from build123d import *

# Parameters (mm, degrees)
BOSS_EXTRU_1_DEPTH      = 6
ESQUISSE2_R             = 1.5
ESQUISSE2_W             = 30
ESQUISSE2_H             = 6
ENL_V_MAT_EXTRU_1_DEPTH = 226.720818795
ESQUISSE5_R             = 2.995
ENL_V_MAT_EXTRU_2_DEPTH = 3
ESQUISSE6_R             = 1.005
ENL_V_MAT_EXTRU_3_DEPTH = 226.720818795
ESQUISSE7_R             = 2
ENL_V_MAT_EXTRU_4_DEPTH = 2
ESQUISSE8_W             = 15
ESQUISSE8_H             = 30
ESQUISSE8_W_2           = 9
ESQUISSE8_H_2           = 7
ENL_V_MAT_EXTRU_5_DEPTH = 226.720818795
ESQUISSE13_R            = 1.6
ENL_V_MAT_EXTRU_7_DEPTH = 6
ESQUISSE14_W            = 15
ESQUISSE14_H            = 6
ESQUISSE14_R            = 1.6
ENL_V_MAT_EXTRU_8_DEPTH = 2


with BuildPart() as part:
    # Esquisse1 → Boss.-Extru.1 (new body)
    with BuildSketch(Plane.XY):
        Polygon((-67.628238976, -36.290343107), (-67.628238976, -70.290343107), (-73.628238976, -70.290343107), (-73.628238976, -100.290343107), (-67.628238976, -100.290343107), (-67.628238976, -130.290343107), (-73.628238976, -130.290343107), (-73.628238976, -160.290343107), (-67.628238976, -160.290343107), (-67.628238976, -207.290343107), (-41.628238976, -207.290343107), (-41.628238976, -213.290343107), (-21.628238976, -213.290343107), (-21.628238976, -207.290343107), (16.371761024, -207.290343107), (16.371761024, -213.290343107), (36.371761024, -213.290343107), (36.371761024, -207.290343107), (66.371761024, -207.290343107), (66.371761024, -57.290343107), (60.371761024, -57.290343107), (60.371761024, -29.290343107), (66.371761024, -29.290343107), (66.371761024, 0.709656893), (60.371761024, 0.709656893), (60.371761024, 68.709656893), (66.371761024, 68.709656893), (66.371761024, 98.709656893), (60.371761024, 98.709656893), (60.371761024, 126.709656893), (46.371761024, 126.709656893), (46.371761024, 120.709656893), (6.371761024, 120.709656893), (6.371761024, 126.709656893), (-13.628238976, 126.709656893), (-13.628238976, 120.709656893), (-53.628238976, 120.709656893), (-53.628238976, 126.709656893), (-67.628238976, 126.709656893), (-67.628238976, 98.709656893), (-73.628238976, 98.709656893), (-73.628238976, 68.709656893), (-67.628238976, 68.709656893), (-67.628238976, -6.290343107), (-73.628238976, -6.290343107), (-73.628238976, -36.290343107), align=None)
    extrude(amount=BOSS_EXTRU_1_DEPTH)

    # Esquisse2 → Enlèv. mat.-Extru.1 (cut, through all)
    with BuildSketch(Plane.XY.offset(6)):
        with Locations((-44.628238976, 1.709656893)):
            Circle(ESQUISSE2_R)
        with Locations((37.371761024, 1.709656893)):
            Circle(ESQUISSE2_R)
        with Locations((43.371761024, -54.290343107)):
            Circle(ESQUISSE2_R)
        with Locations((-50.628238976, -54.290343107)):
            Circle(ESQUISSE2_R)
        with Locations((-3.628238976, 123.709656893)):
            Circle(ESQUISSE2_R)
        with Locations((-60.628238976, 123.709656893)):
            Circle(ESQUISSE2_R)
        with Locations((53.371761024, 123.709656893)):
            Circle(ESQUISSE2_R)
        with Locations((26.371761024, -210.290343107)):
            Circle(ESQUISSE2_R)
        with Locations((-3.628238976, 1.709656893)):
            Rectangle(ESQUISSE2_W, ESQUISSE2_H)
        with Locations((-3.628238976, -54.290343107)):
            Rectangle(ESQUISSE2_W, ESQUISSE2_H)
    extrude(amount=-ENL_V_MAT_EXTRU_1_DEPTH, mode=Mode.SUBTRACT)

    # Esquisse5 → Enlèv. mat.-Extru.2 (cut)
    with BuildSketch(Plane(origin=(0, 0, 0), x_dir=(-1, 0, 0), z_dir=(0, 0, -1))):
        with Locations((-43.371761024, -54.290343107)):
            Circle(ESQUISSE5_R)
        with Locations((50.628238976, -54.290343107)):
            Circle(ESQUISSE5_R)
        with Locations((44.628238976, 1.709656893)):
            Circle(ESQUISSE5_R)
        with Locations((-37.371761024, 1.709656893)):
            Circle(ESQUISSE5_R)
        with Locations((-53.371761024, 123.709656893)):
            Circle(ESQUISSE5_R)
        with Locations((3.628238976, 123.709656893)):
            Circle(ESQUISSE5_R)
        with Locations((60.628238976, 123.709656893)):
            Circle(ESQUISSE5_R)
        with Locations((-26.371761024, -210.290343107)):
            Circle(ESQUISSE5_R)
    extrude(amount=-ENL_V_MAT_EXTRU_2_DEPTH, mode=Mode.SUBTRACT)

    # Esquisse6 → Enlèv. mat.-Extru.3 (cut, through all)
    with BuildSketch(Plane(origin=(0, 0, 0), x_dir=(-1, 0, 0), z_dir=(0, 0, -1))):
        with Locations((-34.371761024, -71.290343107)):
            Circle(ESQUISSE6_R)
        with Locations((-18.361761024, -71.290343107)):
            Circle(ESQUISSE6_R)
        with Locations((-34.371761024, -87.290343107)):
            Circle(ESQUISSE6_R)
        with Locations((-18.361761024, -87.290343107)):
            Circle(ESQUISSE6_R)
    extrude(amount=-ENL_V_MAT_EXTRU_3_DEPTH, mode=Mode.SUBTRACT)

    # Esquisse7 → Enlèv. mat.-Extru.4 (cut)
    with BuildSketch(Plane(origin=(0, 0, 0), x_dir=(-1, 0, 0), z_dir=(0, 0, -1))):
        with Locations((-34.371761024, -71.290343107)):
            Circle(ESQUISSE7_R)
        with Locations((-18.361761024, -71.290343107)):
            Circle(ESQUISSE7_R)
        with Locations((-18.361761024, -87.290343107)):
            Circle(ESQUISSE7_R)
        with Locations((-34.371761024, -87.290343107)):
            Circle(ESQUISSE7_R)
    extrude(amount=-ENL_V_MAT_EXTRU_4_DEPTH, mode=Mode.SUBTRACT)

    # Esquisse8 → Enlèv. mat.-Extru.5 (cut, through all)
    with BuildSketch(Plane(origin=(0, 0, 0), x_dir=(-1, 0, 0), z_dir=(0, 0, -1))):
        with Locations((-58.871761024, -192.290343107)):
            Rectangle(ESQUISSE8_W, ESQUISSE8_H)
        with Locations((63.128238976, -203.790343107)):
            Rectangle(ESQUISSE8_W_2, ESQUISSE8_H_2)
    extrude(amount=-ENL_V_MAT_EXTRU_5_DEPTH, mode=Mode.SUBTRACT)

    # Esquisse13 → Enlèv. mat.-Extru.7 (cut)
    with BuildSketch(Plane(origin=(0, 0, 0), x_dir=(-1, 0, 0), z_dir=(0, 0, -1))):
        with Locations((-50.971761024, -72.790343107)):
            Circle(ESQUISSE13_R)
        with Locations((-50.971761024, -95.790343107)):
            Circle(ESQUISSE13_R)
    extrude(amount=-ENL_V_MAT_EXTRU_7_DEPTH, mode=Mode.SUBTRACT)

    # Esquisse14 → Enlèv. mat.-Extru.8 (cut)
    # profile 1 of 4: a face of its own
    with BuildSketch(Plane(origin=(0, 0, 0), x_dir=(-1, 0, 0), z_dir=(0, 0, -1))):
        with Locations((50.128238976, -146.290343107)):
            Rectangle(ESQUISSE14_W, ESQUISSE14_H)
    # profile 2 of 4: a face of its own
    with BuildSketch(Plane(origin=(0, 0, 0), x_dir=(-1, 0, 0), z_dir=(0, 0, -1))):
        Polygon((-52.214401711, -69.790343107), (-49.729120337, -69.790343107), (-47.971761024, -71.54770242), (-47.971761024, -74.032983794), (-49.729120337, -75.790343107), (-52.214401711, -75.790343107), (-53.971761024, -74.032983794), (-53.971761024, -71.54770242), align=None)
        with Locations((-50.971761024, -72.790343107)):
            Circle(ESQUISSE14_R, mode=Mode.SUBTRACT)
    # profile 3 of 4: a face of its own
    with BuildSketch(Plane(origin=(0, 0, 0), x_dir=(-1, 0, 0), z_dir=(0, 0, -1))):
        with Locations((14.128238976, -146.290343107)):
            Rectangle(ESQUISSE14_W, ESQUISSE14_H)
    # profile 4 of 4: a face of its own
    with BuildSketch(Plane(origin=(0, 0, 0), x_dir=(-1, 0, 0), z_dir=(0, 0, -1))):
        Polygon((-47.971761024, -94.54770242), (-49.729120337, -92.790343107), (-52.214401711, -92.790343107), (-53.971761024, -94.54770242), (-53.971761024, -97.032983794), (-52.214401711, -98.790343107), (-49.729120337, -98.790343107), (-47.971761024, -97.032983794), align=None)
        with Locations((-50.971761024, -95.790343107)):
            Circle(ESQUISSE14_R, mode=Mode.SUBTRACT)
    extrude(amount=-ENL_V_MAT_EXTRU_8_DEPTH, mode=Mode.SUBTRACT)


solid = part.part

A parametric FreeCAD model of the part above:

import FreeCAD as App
import Part
import Sketcher

V = App.Vector
Q = App.Units.Quantity

doc = App.newDocument("Part")
body = doc.addObject("PartDesign::Body", "Body")

# Sketch on XY plane
sketch1 = body.newObject("Sketcher::SketchObject", "Sketch")
sketch1.AttachmentSupport = (doc.getObject("XY_Plane"), [""])
sketch1.MapMode = "FlatFace"
sketch1.addGeometry(Part.LineSegment(V(-68, -36, 0), V(-68, -70, 0)), False)
sketch1.addGeometry(Part.LineSegment(V(-68, -70, 0), V(-74, -70, 0)), False)
sketch1.addGeometry(Part.LineSegment(V(-74, -70, 0), V(-74, -100, 0)), False)
sketch1.addGeometry(Part.LineSegment(V(-74, -100, 0), V(-68, -100, 0)), False)
sketch1.addGeometry(Part.LineSegment(V(-68, -100, 0), V(-68, -130, 0)), False)
sketch1.addGeometry(Part.LineSegment(V(-68, -130, 0), V(-74, -130, 0)), False)
sketch1.addGeometry(Part.LineSegment(V(-74, -130, 0), V(-74, -160, 0)), False)
sketch1.addGeometry(Part.LineSegment(V(-74, -160, 0), V(-68, -160, 0)), False)
sketch1.addGeometry(Part.LineSegment(V(-68, -160, 0), V(-68, -207, 0)), False)
sketch1.addGeometry(Part.LineSegment(V(-68, -207, 0), V(-42, -207, 0)), False)
sketch1.addGeometry(Part.LineSegment(V(-42, -207, 0), V(-42, -213, 0)), False)
sketch1.addGeometry(Part.LineSegment(V(-42, -213, 0), V(-22, -213, 0)), False)
sketch1.addGeometry(Part.LineSegment(V(-22, -213, 0), V(-22, -207, 0)), False)
sketch1.addGeometry(Part.LineSegment(V(-22, -207, 0), V(16, -207, 0)), False)
sketch1.addGeometry(Part.LineSegment(V(16, -207, 0), V(16, -213, 0)), False)
sketch1.addGeometry(Part.LineSegment(V(16, -213, 0), V(36, -213, 0)), False)
sketch1.addGeometry(Part.LineSegment(V(36, -213, 0), V(36, -207, 0)), False)
sketch1.addGeometry(Part.LineSegment(V(36, -207, 0), V(66, -207, 0)), False)
sketch1.addGeometry(Part.LineSegment(V(66, -207, 0), V(66, -57, 0)), False)
sketch1.addGeometry(Part.LineSegment(V(66, -57, 0), V(60, -57, 0)), False)
sketch1.addGeometry(Part.LineSegment(V(60, -57, 0), V(60, -29, 0)), False)
sketch1.addGeometry(Part.LineSegment(V(60, -29, 0), V(66, -29, 0)), False)
sketch1.addGeometry(Part.LineSegment(V(66, -29, 0), V(66, 1, 0)), False)
sketch1.addGeometry(Part.LineSegment(V(66, 1, 0), V(60, 1, 0)), False)
sketch1.addGeometry(Part.LineSegment(V(60, 1, 0), V(60, 69, 0)), False)
sketch1.addGeometry(Part.LineSegment(V(60, 69, 0), V(66, 69, 0)), False)
sketch1.addGeometry(Part.LineSegment(V(66, 69, 0), V(66, 99, 0)), False)
sketch1.addGeometry(Part.LineSegment(V(66, 99, 0), V(60, 99, 0)), False)
sketch1.addGeometry(Part.LineSegment(V(60, 99, 0), V(60, 127, 0)), False)
sketch1.addGeometry(Part.LineSegment(V(60, 127, 0), V(46, 127, 0)), False)
sketch1.addGeometry(Part.LineSegment(V(46, 127, 0), V(46, 121, 0)), False)
sketch1.addGeometry(Part.LineSegment(V(46, 121, 0), V(6, 121, 0)), False)
sketch1.addGeometry(Part.LineSegment(V(6, 121, 0), V(6, 127, 0)), False)
sketch1.addGeometry(Part.LineSegment(V(6, 127, 0), V(-14, 127, 0)), False)
sketch1.addGeometry(Part.LineSegment(V(-14, 127, 0), V(-14, 121, 0)), False)
sketch1.addGeometry(Part.LineSegment(V(-14, 121, 0), V(-54, 121, 0)), False)
sketch1.addGeometry(Part.LineSegment(V(-54, 121, 0), V(-54, 127, 0)), False)
sketch1.addGeometry(Part.LineSegment(V(-54, 127, 0), V(-68, 127, 0)), False)
sketch1.addGeometry(Part.LineSegment(V(-68, 127, 0), V(-68, 99, 0)), False)
sketch1.addGeometry(Part.LineSegment(V(-68, 99, 0), V(-74, 99, 0)), False)
sketch1.addGeometry(Part.LineSegment(V(-74, 99, 0), V(-74, 69, 0)), False)
sketch1.addGeometry(Part.LineSegment(V(-74, 69, 0), V(-68, 69, 0)), False)
sketch1.addGeometry(Part.LineSegment(V(-68, 69, 0), V(-68, -6, 0)), False)
sketch1.addGeometry(Part.LineSegment(V(-68, -6, 0), V(-74, -6, 0)), False)
sketch1.addGeometry(Part.LineSegment(V(-74, -6, 0), V(-74, -36, 0)), False)
sketch1.addGeometry(Part.LineSegment(V(-74, -36, 0), V(-68, -36, 0)), False)
sketch1.addConstraint(Sketcher.Constraint("Coincident", 0, 2, 1, 1))
sketch1.addConstraint(Sketcher.Constraint("Coincident", 1, 2, 2, 1))
sketch1.addConstraint(Sketcher.Constraint("Coincident", 2, 2, 3, 1))
sketch1.addConstraint(Sketcher.Constraint("Coincident", 3, 2, 4, 1))
sketch1.addConstraint(Sketcher.Constraint("Coincident", 4, 2, 5, 1))
sketch1.addConstraint(Sketcher.Constraint("Coincident", 5, 2, 6, 1))
sketch1.addConstraint(Sketcher.Constraint("Coincident", 6, 2, 7, 1))
sketch1.addConstraint(Sketcher.Constraint("Coincident", 7, 2, 8, 1))
sketch1.addConstraint(Sketcher.Constraint("Coincident", 8, 2, 9, 1))
sketch1.addConstraint(Sketcher.Constraint("Coincident", 9, 2, 10, 1))
sketch1.addConstraint(Sketcher.Constraint("Coincident", 10, 2, 11, 1))
sketch1.addConstraint(Sketcher.Constraint("Coincident", 11, 2, 12, 1))
sketch1.addConstraint(Sketcher.Constraint("Coincident", 12, 2, 13, 1))
sketch1.addConstraint(Sketcher.Constraint("Coincident", 13, 2, 14, 1))
sketch1.addConstraint(Sketcher.Constraint("Coincident", 14, 2, 15, 1))
sketch1.addConstraint(Sketcher.Constraint("Coincident", 15, 2, 16, 1))
sketch1.addConstraint(Sketcher.Constraint("Coincident", 16, 2, 17, 1))
sketch1.addConstraint(Sketcher.Constraint("Coincident", 17, 2, 18, 1))
sketch1.addConstraint(Sketcher.Constraint("Coincident", 18, 2, 19, 1))
sketch1.addConstraint(Sketcher.Constraint("Coincident", 19, 2, 20, 1))
sketch1.addConstraint(Sketcher.Constraint("Coincident", 20, 2, 21, 1))
sketch1.addConstraint(Sketcher.Constraint("Coincident", 21, 2, 22, 1))
sketch1.addConstraint(Sketcher.Constraint("Coincident", 22, 2, 23, 1))
sketch1.addConstraint(Sketcher.Constraint("Coincident", 23, 2, 24, 1))
sketch1.addConstraint(Sketcher.Constraint("Coincident", 24, 2, 25, 1))
sketch1.addConstraint(Sketcher.Constraint("Coincident", 25, 2, 26, 1))
sketch1.addConstraint(Sketcher.Constraint("Coincident", 26, 2, 27, 1))
sketch1.addConstraint(Sketcher.Constraint("Coincident", 27, 2, 28, 1))
sketch1.addConstraint(Sketcher.Constraint("Coincident", 28, 2, 29, 1))
sketch1.addConstraint(Sketcher.Constraint("Coincident", 29, 2, 30, 1))
sketch1.addConstraint(Sketcher.Constraint("Coincident", 30, 2, 31, 1))
sketch1.addConstraint(Sketcher.Constraint("Coincident", 31, 2, 32, 1))
sketch1.addConstraint(Sketcher.Constraint("Coincident", 32, 2, 33, 1))
sketch1.addConstraint(Sketcher.Constraint("Coincident", 33, 2, 34, 1))
sketch1.addConstraint(Sketcher.Constraint("Coincident", 34, 2, 35, 1))
sketch1.addConstraint(Sketcher.Constraint("Coincident", 35, 2, 36, 1))
sketch1.addConstraint(Sketcher.Constraint("Coincident", 36, 2, 37, 1))
sketch1.addConstraint(Sketcher.Constraint("Coincident", 37, 2, 38, 1))
sketch1.addConstraint(Sketcher.Constraint("Coincident", 38, 2, 39, 1))
sketch1.addConstraint(Sketcher.Constraint("Coincident", 39, 2, 40, 1))
sketch1.addConstraint(Sketcher.Constraint("Coincident", 40, 2, 41, 1))
sketch1.addConstraint(Sketcher.Constraint("Coincident", 41, 2, 42, 1))
sketch1.addConstraint(Sketcher.Constraint("Coincident", 42, 2, 43, 1))
sketch1.addConstraint(Sketcher.Constraint("Coincident", 43, 2, 44, 1))
sketch1.addConstraint(Sketcher.Constraint("Coincident", 44, 2, 45, 1))
sketch1.addConstraint(Sketcher.Constraint("Coincident", 45, 2, 0, 1))
sketch1.addConstraint(Sketcher.Constraint("Vertical", 0))
sketch1.addConstraint(Sketcher.Constraint("Horizontal", 1))
sketch1.addConstraint(Sketcher.Constraint("Vertical", 2))
sketch1.addConstraint(Sketcher.Constraint("Horizontal", 3))
sketch1.addConstraint(Sketcher.Constraint("Vertical", 4))
sketch1.addConstraint(Sketcher.Constraint("Horizontal", 5))
sketch1.addConstraint(Sketcher.Constraint("Vertical", 6))
sketch1.addConstraint(Sketcher.Constraint("Horizontal", 7))
sketch1.addConstraint(Sketcher.Constraint("Vertical", 8))
sketch1.addConstraint(Sketcher.Constraint("Horizontal", 9))
sketch1.addConstraint(Sketcher.Constraint("Vertical", 10))
sketch1.addConstraint(Sketcher.Constraint("Horizontal", 11))
sketch1.addConstraint(Sketcher.Constraint("Vertical", 12))
sketch1.addConstraint(Sketcher.Constraint("Horizontal", 13))
sketch1.addConstraint(Sketcher.Constraint("Vertical", 14))
sketch1.addConstraint(Sketcher.Constraint("Horizontal", 15))
sketch1.addConstraint(Sketcher.Constraint("Vertical", 16))
sketch1.addConstraint(Sketcher.Constraint("Horizontal", 17))
sketch1.addConstraint(Sketcher.Constraint("Vertical", 18))
sketch1.addConstraint(Sketcher.Constraint("Horizontal", 19))
sketch1.addConstraint(Sketcher.Constraint("Vertical", 20))
sketch1.addConstraint(Sketcher.Constraint("Horizontal", 21))
sketch1.addConstraint(Sketcher.Constraint("Vertical", 22))
sketch1.addConstraint(Sketcher.Constraint("Horizontal", 23))
sketch1.addConstraint(Sketcher.Constraint("Vertical", 24))
sketch1.addConstraint(Sketcher.Constraint("Horizontal", 25))
sketch1.addConstraint(Sketcher.Constraint("Vertical", 26))
sketch1.addConstraint(Sketcher.Constraint("Horizontal", 27))
sketch1.addConstraint(Sketcher.Constraint("Vertical", 28))
sketch1.addConstraint(Sketcher.Constraint("Horizontal", 29))
sketch1.addConstraint(Sketcher.Constraint("Vertical", 30))
sketch1.addConstraint(Sketcher.Constraint("Horizontal", 31))
sketch1.addConstraint(Sketcher.Constraint("Vertical", 32))
sketch1.addConstraint(Sketcher.Constraint("Horizontal", 33))
sketch1.addConstraint(Sketcher.Constraint("Vertical", 34))
sketch1.addConstraint(Sketcher.Constraint("Horizontal", 35))
sketch1.addConstraint(Sketcher.Constraint("Vertical", 36))
sketch1.addConstraint(Sketcher.Constraint("Horizontal", 37))
sketch1.addConstraint(Sketcher.Constraint("Vertical", 38))
sketch1.addConstraint(Sketcher.Constraint("Horizontal", 39))
sketch1.addConstraint(Sketcher.Constraint("Vertical", 40))
sketch1.addConstraint(Sketcher.Constraint("Horizontal", 41))
sketch1.addConstraint(Sketcher.Constraint("Vertical", 42))
sketch1.addConstraint(Sketcher.Constraint("Horizontal", 43))
sketch1.addConstraint(Sketcher.Constraint("Vertical", 44))
sketch1.addConstraint(Sketcher.Constraint("Horizontal", 45))
sketch1.addConstraint(Sketcher.Constraint("Horizontal", 9, 2, 12, 2))
sketch1.addConstraint(Sketcher.Constraint("Horizontal", 11, 2, 14, 2))
sketch1.addConstraint(Sketcher.Constraint("Horizontal", 13, 2, 16, 2))
sketch1.addConstraint(Sketcher.Constraint("Horizontal", 29, 2, 32, 2))
sketch1.addConstraint(Sketcher.Constraint("Horizontal", 31, 2, 34, 2))
sketch1.addConstraint(Sketcher.Constraint("Horizontal", 33, 2, 36, 2))
sketch1.addConstraint(Sketcher.Constraint("Horizontal", 27, 2, 38, 2))
sketch1.addConstraint(Sketcher.Constraint("Horizontal", 25, 2, 40, 2))
sketch1.addConstraint(Sketcher.Constraint("Vertical", 0, 2, 3, 2))
sketch1.addConstraint(Sketcher.Constraint("Vertical", 2, 2, 5, 2))
sketch1.addConstraint(Sketcher.Constraint("Vertical", 4, 2, 7, 2))
sketch1.addConstraint(Sketcher.Constraint("Vertical", 18, 2, 21, 2))
sketch1.addConstraint(Sketcher.Constraint("Vertical", 20, 2, 23, 2))
sketch1.addConstraint(Sketcher.Constraint("Vertical", 22, 2, 25, 2))
sketch1.addConstraint(Sketcher.Constraint("Vertical", 24, 2, 27, 2))
sketch1.addConstraint(Sketcher.Constraint("Vertical", 8, 2, 37, 2))
sketch1.addConstraint(Sketcher.Constraint("Vertical", 6, 2, 39, 2))
sketch1.addConstraint(Sketcher.Constraint("Vertical", 38, 2, 41, 2))
sketch1.addConstraint(Sketcher.Constraint("Vertical", 40, 2, 43, 2))
sketch1.addConstraint(Sketcher.Constraint("Equal", 11, 15))
sketch1.addConstraint(Sketcher.Constraint("Equal", 7, 19))
sketch1.addConstraint(Sketcher.Constraint("Equal", 15, 33))
sketch1.addConstraint(Sketcher.Constraint("Equal", 31, 35))
sketch1.addConstraint(Sketcher.Constraint("Equal", 29, 37))
sketch1.addConstraint(Sketcher.Constraint("Equal", 17, 2))
sketch1.addConstraint(Sketcher.Constraint("Equal", 2, 4))
sketch1.addConstraint(Sketcher.Constraint("Equal", 4, 6))
sketch1.addConstraint(Sketcher.Constraint("Equal", 45, 10))
sketch1.addConstraint(Sketcher.Constraint("Equal", 6, 22))
sketch1.addConstraint(Sketcher.Constraint("Equal", 22, 26))
sketch1.addConstraint(Sketcher.Constraint("Equal", 20, 28))
sketch1.addConstraint(Sketcher.Constraint("Equal", 16, 30))
sketch1.addConstraint(Sketcher.Constraint("Equal", 40, 44))
sketch1.addConstraint(Sketcher.Constraint("DistanceX", 1, 2, 1, 1, Q("6 mm")))
sketch1.addConstraint(Sketcher.Constraint("DistanceX", 9, 1, 9, 2, Q("26 mm")))
sketch1.addConstraint(Sketcher.Constraint("DistanceX", 11, 1, 11, 2, Q("20 mm")))
sketch1.addConstraint(Sketcher.Constraint("DistanceX", 13, 1, 13, 2, Q("38 mm")))
sketch1.addConstraint(Sketcher.Constraint("DistanceX", 17, 1, 17, 2, Q("30 mm")))
sketch1.addConstraint(Sketcher.Constraint("DistanceX", 29, 2, 29, 1, Q("14 mm")))
sketch1.addConstraint(Sketcher.Constraint("DistanceY", 0, 2, 0, 1, Q("34 mm")))
sketch1.addConstraint(Sketcher.Constraint("DistanceY", 8, 2, 8, 1, Q("47 mm")))
sketch1.addConstraint(Sketcher.Constraint("DistanceY", 18, 1, 18, 2, Q("150 mm")))
sketch1.addConstraint(Sketcher.Constraint("DistanceY", 20, 1, 20, 2, Q("28 mm")))
sketch1.addConstraint(Sketcher.Constraint("DistanceY", 24, 1, 24, 2, Q("68 mm")))
sketch1.addConstraint(Sketcher.Constraint("DistanceX", 0, 2, -1, 1, Q("67.628239 mm")))
sketch1.addConstraint(Sketcher.Constraint("DistanceY", 0, 2, -1, 1, Q("70.290343 mm")))
pad1 = body.newObject("PartDesign::Pad", "Pad")
pad1.Profile = sketch1
pad1.Length = 6

# Sketch on XY plane
sketch2 = body.newObject("Sketcher::SketchObject", "Sketch001")
sketch2.AttachmentSupport = (doc.getObject("XY_Plane"), [""])
sketch2.MapMode = "FlatFace"
sketch2.AttachmentOffset = App.Placement(V(0, 0, 6), App.Rotation())
sketch2.addGeometry(Part.Circle(V(-44.6, 1.7, 0), V(0, 0, 1), 1.5), False)
sketch2.addGeometry(Part.Circle(V(37.4, 1.7, 0), V(0, 0, 1), 1.5), False)
sketch2.addGeometry(Part.Circle(V(43.4, -54.3, 0), V(0, 0, 1), 1.5), False)
sketch2.addGeometry(Part.Circle(V(-50.6, -54.3, 0), V(0, 0, 1), 1.5), False)
sketch2.addGeometry(Part.Circle(V(-3.6, 123.7, 0), V(0, 0, 1), 1.5), False)
sketch2.addGeometry(Part.Circle(V(-60.6, 123.7, 0), V(0, 0, 1), 1.5), False)
sketch2.addGeometry(Part.Circle(V(53.4, 123.7, 0), V(0, 0, 1), 1.5), False)
sketch2.addGeometry(Part.Circle(V(26.4, -210.3, 0), V(0, 0, 1), 1.5), False)
sketch2.addGeometry(Part.LineSegment(V(-18.6, 4.7, 0), V(-18.6, -1.3, 0)), False)
sketch2.addGeometry(Part.LineSegment(V(-18.6, -1.3, 0), V(11.4, -1.3, 0)), False)
sketch2.addGeometry(Part.LineSegment(V(11.4, -1.3, 0), V(11.4, 4.7, 0)), False)
sketch2.addGeometry(Part.LineSegment(V(11.4, 4.7, 0), V(-18.6, 4.7, 0)), False)
sketch2.addGeometry(Part.LineSegment(V(-18.6, -51.3, 0), V(-18.6, -57.3, 0)), False)
sketch2.addGeometry(Part.LineSegment(V(-18.6, -57.3, 0), V(11.4, -57.3, 0)), False)
sketch2.addGeometry(Part.LineSegment(V(11.4, -57.3, 0), V(11.4, -51.3, 0)), False)
sketch2.addGeometry(Part.LineSegment(V(11.4, -51.3, 0), V(-18.6, -51.3, 0)), False)
sketch2.addConstraint(Sketcher.Constraint("Coincident", 8, 2, 9, 1))
sketch2.addConstraint(Sketcher.Constraint("Coincident", 9, 2, 10, 1))
sketch2.addConstraint(Sketcher.Constraint("Coincident", 10, 2, 11, 1))
sketch2.addConstraint(Sketcher.Constraint("Coincident", 11, 2, 8, 1))
sketch2.addConstraint(Sketcher.Constraint("Coincident", 12, 2, 13, 1))
sketch2.addConstraint(Sketcher.Constraint("Coincident", 13, 2, 14, 1))
sketch2.addConstraint(Sketcher.Constraint("Coincident", 14, 2, 15, 1))
sketch2.addConstraint(Sketcher.Constraint("Coincident", 15, 2, 12, 1))
sketch2.addConstraint(Sketcher.Constraint("Vertical", 8))
sketch2.addConstraint(Sketcher.Constraint("Horizontal", 9))
sketch2.addConstraint(Sketcher.Constraint("Vertical", 10))
sketch2.addConstraint(Sketcher.Constraint("Horizontal", 11))
sketch2.addConstraint(Sketcher.Constraint("Vertical", 12))
sketch2.addConstraint(Sketcher.Constraint("Horizontal", 13))
sketch2.addConstraint(Sketcher.Constraint("Vertical", 14))
sketch2.addConstraint(Sketcher.Constraint("Horizontal", 15))
sketch2.addConstraint(Sketcher.Constraint("Equal", 0, 1))
sketch2.addConstraint(Sketcher.Constraint("Equal", 1, 2))
sketch2.addConstraint(Sketcher.Constraint("Equal", 2, 3))
sketch2.addConstraint(Sketcher.Constraint("Equal", 3, 4))
sketch2.addConstraint(Sketcher.Constraint("Equal", 4, 5))
sketch2.addConstraint(Sketcher.Constraint("Equal", 5, 6))
sketch2.addConstraint(Sketcher.Constraint("Equal", 6, 7))
sketch2.addConstraint(Sketcher.Constraint("Horizontal", 0, 3, 1, 3))
sketch2.addConstraint(Sketcher.Constraint("Horizontal", 2, 3, 3, 3))
sketch2.addConstraint(Sketcher.Constraint("Horizontal", 4, 3, 5, 3))
sketch2.addConstraint(Sketcher.Constraint("Horizontal", 5, 3, 6, 3))
sketch2.addConstraint(Sketcher.Constraint("Vertical", 11, 2, 12, 2))
sketch2.addConstraint(Sketcher.Constraint("Vertical", 10, 2, 13, 2))
sketch2.addConstraint(Sketcher.Constraint("Equal", 10, 12))
sketch2.addConstraint(Sketcher.Constraint("Diameter", 0, Q("3 mm")))
sketch2.addConstraint(Sketcher.Constraint("DistanceX", 9, 1, 9, 2, Q("30 mm")))
sketch2.addConstraint(Sketcher.Constraint("DistanceY", 8, 2, 8, 1, Q("6 mm")))
sketch2.addConstraint(Sketcher.Constraint("DistanceX", 0, 3, 1, 3, Q("82 mm")))
sketch2.addConstraint(Sketcher.Constraint("DistanceX", 1, 3, 2, 3, Q("6 mm")))
sketch2.addConstraint(Sketcher.Constraint("DistanceY", 2, 3, 1, 3, Q("56 mm")))
sketch2.addConstraint(Sketcher.Constraint("DistanceX", 3, 3, 0, 3, Q("6 mm")))
sketch2.addConstraint(Sketcher.Constraint("DistanceX", 0, 3, 4, 3, Q("41 mm")))
sketch2.addConstraint(Sketcher.Constraint("DistanceY", 0, 3, 4, 3, Q("122 mm")))
sketch2.addConstraint(Sketcher.Constraint("DistanceX", 5, 3, 4, 3, Q("57 mm")))
sketch2.addConstraint(Sketcher.Constraint("DistanceX", 4, 3, 6, 3, Q("57 mm")))
sketch2.addConstraint(Sketcher.Constraint("DistanceX", 7, 3, 2, 3, Q("17 mm")))
sketch2.addConstraint(Sketcher.Constraint("DistanceY", 7, 3, 2, 3, Q("156 mm")))
sketch2.addConstraint(Sketcher.Constraint("DistanceX", 0, 3, 8, 2, Q("26 mm")))
sketch2.addConstraint(Sketcher.Constraint("DistanceY", 8, 2, 0, 3, Q("3 mm")))
sketch2.addConstraint(Sketcher.Constraint("DistanceY", 12, 2, 3, 3, Q("3 mm")))
sketch2.addConstraint(Sketcher.Constraint("DistanceX", 0, 3, -1, 1, Q("44.628239 mm")))
sketch2.addConstraint(Sketcher.Constraint("DistanceY", -1, 1, 0, 3, Q("1.709657 mm")))
pocket1 = body.newObject("PartDesign::Pocket", "Pocket")
pocket1.Profile = sketch2
pocket1.Type = "ThroughAll"

# Sketch on XY plane
sketch3 = body.newObject("Sketcher::SketchObject", "Sketch002")
sketch3.AttachmentSupport = (doc.getObject("XY_Plane"), [""])
sketch3.MapMode = "FlatFace"
sketch3.addGeometry(Part.Circle(V(43.4, -54.3, 0), V(0, 0, 1), 3), False)
sketch3.addGeometry(Part.Circle(V(-50.6, -54.3, 0), V(0, 0, 1), 3), False)
sketch3.addGeometry(Part.Circle(V(-44.6, 1.7, 0), V(0, 0, 1), 3), False)
sketch3.addGeometry(Part.Circle(V(37.4, 1.7, 0), V(0, 0, 1), 3), False)
sketch3.addGeometry(Part.Circle(V(53.4, 123.7, 0), V(0, 0, 1), 3), False)
sketch3.addGeometry(Part.Circle(V(-3.6, 123.7, 0), V(0, 0, 1), 3), False)
sketch3.addGeometry(Part.Circle(V(-60.6, 123.7, 0), V(0, 0, 1), 3), False)
sketch3.addGeometry(Part.Circle(V(26.4, -210.3, 0), V(0, 0, 1), 3), False)
sketch3.addConstraint(Sketcher.Constraint("Equal", 0, 1))
sketch3.addConstraint(Sketcher.Constraint("Equal", 1, 2))
sketch3.addConstraint(Sketcher.Constraint("Equal", 2, 3))
sketch3.addConstraint(Sketcher.Constraint("Equal", 3, 4))
sketch3.addConstraint(Sketcher.Constraint("Equal", 4, 5))
sketch3.addConstraint(Sketcher.Constraint("Equal", 5, 6))
sketch3.addConstraint(Sketcher.Constraint("Equal", 6, 7))
sketch3.addConstraint(Sketcher.Constraint("Horizontal", 0, 3, 1, 3))
sketch3.addConstraint(Sketcher.Constraint("Horizontal", 2, 3, 3, 3))
sketch3.addConstraint(Sketcher.Constraint("Horizontal", 4, 3, 5, 3))
sketch3.addConstraint(Sketcher.Constraint("Horizontal", 5, 3, 6, 3))
sketch3.addConstraint(Sketcher.Constraint("Diameter", 0, Q("5.99 mm")))
sketch3.addConstraint(Sketcher.Constraint("DistanceX", 1, 3, 0, 3, Q("94 mm")))
sketch3.addConstraint(Sketcher.Constraint("DistanceX", 1, 3, 2, 3, Q("6 mm")))
sketch3.addConstraint(Sketcher.Constraint("DistanceY", 1, 3, 2, 3, Q("56 mm")))
sketch3.addConstraint(Sketcher.Constraint("DistanceX", 3, 3, 0, 3, Q("6 mm")))
sketch3.addConstraint(Sketcher.Constraint("DistanceX", 3, 3, 4, 3, Q("16 mm")))
sketch3.addConstraint(Sketcher.Constraint("DistanceY", 3, 3, 4, 3, Q("122 mm")))
sketch3.addConstraint(Sketcher.Constraint("DistanceX", 5, 3, 4, 3, Q("57 mm")))
sketch3.addConstraint(Sketcher.Constraint("DistanceX", 6, 3, 5, 3, Q("57 mm")))
sketch3.addConstraint(Sketcher.Constraint("DistanceX", 7, 3, 0, 3, Q("17 mm")))
sketch3.addConstraint(Sketcher.Constraint("DistanceY", 7, 3, 0, 3, Q("156 mm")))
sketch3.addConstraint(Sketcher.Constraint("DistanceX", -1, 1, 0, 3, Q("43.371761 mm")))
sketch3.addConstraint(Sketcher.Constraint("DistanceY", 0, 3, -1, 1, Q("54.290343 mm")))
pocket2 = body.newObject("PartDesign::Pocket", "Pocket001")
pocket2.Profile = sketch3
pocket2.Length = 3
pocket2.Reversed = True

# Sketch on XY plane
sketch4 = body.newObject("Sketcher::SketchObject", "Sketch003")
sketch4.AttachmentSupport = (doc.getObject("XY_Plane"), [""])
sketch4.MapMode = "FlatFace"
sketch4.addGeometry(Part.Circle(V(34.4, -71.3, 0), V(0, 0, 1), 1), False)
sketch4.addGeometry(Part.Circle(V(18.4, -71.3, 0), V(0, 0, 1), 1), False)
sketch4.addGeometry(Part.Circle(V(34.4, -87.3, 0), V(0, 0, 1), 1), False)
sketch4.addGeometry(Part.Circle(V(18.4, -87.3, 0), V(0, 0, 1), 1), False)
sketch4.addConstraint(Sketcher.Constraint("Equal", 0, 1))
sketch4.addConstraint(Sketcher.Constraint("Equal", 1, 2))
sketch4.addConstraint(Sketcher.Constraint("Equal", 2, 3))
sketch4.addConstraint(Sketcher.Constraint("Horizontal", 0, 3, 1, 3))
sketch4.addConstraint(Sketcher.Constraint("Horizontal", 2, 3, 3, 3))
sketch4.addConstraint(Sketcher.Constraint("Vertical", 0, 3, 2, 3))
sketch4.addConstraint(Sketcher.Constraint("Vertical", 1, 3, 3, 3))
sketch4.addConstraint(Sketcher.Constraint("Diameter", 0, Q("2.01 mm")))
sketch4.addConstraint(Sketcher.Constraint("DistanceY", 2, 3, 0, 3, Q("16 mm")))
sketch4.addConstraint(Sketcher.Constraint("DistanceX", 1, 3, 0, 3, Q("16.01 mm")))
sketch4.addConstraint(Sketcher.Constraint("DistanceX", -1, 1, 0, 3, Q("34.371761 mm")))
sketch4.addConstraint(Sketcher.Constraint("DistanceY", 0, 3, -1, 1, Q("71.290343 mm")))
pocket3 = body.newObject("PartDesign::Pocket", "Pocket002")
pocket3.Profile = sketch4
pocket3.Type = "ThroughAll"
pocket3.Reversed = True

# Sketch on XY plane
sketch5 = body.newObject("Sketcher::SketchObject", "Sketch004")
sketch5.AttachmentSupport = (doc.getObject("XY_Plane"), [""])
sketch5.MapMode = "FlatFace"
sketch5.addGeometry(Part.Circle(V(34.4, -71.3, 0), V(0, 0, 1), 2), False)
sketch5.addGeometry(Part.Circle(V(18.4, -71.3, 0), V(0, 0, 1), 2), False)
sketch5.addGeometry(Part.Circle(V(18.4, -87.3, 0), V(0, 0, 1), 2), False)
sketch5.addGeometry(Part.Circle(V(34.4, -87.3, 0), V(0, 0, 1), 2), False)
sketch5.addConstraint(Sketcher.Constraint("Equal", 0, 1))
sketch5.addConstraint(Sketcher.Constraint("Equal", 1, 2))
sketch5.addConstraint(Sketcher.Constraint("Equal", 2, 3))
sketch5.addConstraint(Sketcher.Constraint("Horizontal", 0, 3, 1, 3))
sketch5.addConstraint(Sketcher.Constraint("Horizontal", 2, 3, 3, 3))
sketch5.addConstraint(Sketcher.Constraint("Vertical", 1, 3, 2, 3))
sketch5.addConstraint(Sketcher.Constraint("Vertical", 0, 3, 3, 3))
sketch5.addConstraint(Sketcher.Constraint("Diameter", 0, Q("4 mm")))
sketch5.addConstraint(Sketcher.Constraint("DistanceY", 2, 3, 1, 3, Q("16 mm")))
sketch5.addConstraint(Sketcher.Constraint("DistanceX", 1, 3, 0, 3, Q("16.01 mm")))
sketch5.addConstraint(Sketcher.Constraint("DistanceX", -1, 1, 0, 3, Q("34.371761 mm")))
sketch5.addConstraint(Sketcher.Constraint("DistanceY", 0, 3, -1, 1, Q("71.290343 mm")))
pocket4 = body.newObject("PartDesign::Pocket", "Pocket003")
pocket4.Profile = sketch5
pocket4.Length = 2
pocket4.Reversed = True

# Sketch on XY plane
sketch6 = body.newObject("Sketcher::SketchObject", "Sketch005")
sketch6.AttachmentSupport = (doc.getObject("XY_Plane"), [""])
sketch6.MapMode = "FlatFace"
sketch6.addGeometry(Part.LineSegment(V(66, -177, 0), V(66, -207, 0)), False)
sketch6.addGeometry(Part.LineSegment(V(66, -207, 0), V(51, -207, 0)), False)
sketch6.addGeometry(Part.LineSegment(V(51, -207, 0), V(51, -177, 0)), False)
sketch6.addGeometry(Part.LineSegment(V(51, -177, 0), V(66, -177, 0)), False)
sketch6.addGeometry(Part.LineSegment(V(-59, -200, 0), V(-59, -207, 0)), False)
sketch6.addGeometry(Part.LineSegment(V(-59, -207, 0), V(-68, -207, 0)), False)
sketch6.addGeometry(Part.LineSegment(V(-68, -207, 0), V(-68, -200, 0)), False)
sketch6.addGeometry(Part.LineSegment(V(-68, -200, 0), V(-59, -200, 0)), False)
sketch6.addConstraint(Sketcher.Constraint("Coincident", 0, 2, 1, 1))
sketch6.addConstraint(Sketcher.Constraint("Coincident", 1, 2, 2, 1))
sketch6.addConstraint(Sketcher.Constraint("Coincident", 2, 2, 3, 1))
sketch6.addConstraint(Sketcher.Constraint("Coincident", 3, 2, 0, 1))
sketch6.addConstraint(Sketcher.Constraint("Coincident", 4, 2, 5, 1))
sketch6.addConstraint(Sketcher.Constraint("Coincident", 5, 2, 6, 1))
sketch6.addConstraint(Sketcher.Constraint("Coincident", 6, 2, 7, 1))
sketch6.addConstraint(Sketcher.Constraint("Coincident", 7, 2, 4, 1))
sketch6.addConstraint(Sketcher.Constraint("Vertical", 0))
sketch6.addConstraint(Sketcher.Constraint("Horizontal", 1))
sketch6.addConstraint(Sketcher.Constraint("Vertical", 2))
sketch6.addConstraint(Sketcher.Constraint("Horizontal", 3))
sketch6.addConstraint(Sketcher.Constraint("Vertical", 4))
sketch6.addConstraint(Sketcher.Constraint("Horizontal", 5))
sketch6.addConstraint(Sketcher.Constraint("Vertical", 6))
sketch6.addConstraint(Sketcher.Constraint("Horizontal", 7))
sketch6.addConstraint(Sketcher.Constraint("Horizontal", 1, 2, 4, 2))
sketch6.addConstraint(Sketcher.Constraint("DistanceX", 1, 2, 1, 1, Q("15 mm")))
sketch6.addConstraint(Sketcher.Constraint("DistanceX", 5, 2, 5, 1, Q("9 mm")))
sketch6.addConstraint(Sketcher.Constraint("DistanceY", 0, 2, 0, 1, Q("30 mm")))
sketch6.addConstraint(Sketcher.Constraint("DistanceY", 4, 2, 4, 1, Q("7 mm")))
sketch6.addConstraint(Sketcher.Constraint("DistanceX", 4, 2, 1, 2, Q("110 mm")))
sketch6.addConstraint(Sketcher.Constraint("DistanceX", -1, 1, 0, 2, Q("66.371761 mm")))
sketch6.addConstraint(Sketcher.Constraint("DistanceY", 0, 2, -1, 1, Q("207.290343 mm")))
pocket5 = body.newObject("PartDesign::Pocket", "Pocket004")
pocket5.Profile = sketch6
pocket5.Type = "ThroughAll"
pocket5.Reversed = True

# Sketch on XY plane
sketch7 = body.newObject("Sketcher::SketchObject", "Sketch006")
sketch7.AttachmentSupport = (doc.getObject("XY_Plane"), [""])
sketch7.MapMode = "FlatFace"
sketch7.addGeometry(Part.Circle(V(51, -72.8, 0), V(0, 0, 1), 1.6), False)
sketch7.addGeometry(Part.Circle(V(51, -95.8, 0), V(0, 0, 1), 1.6), False)
sketch7.addConstraint(Sketcher.Constraint("Equal", 0, 1))
sketch7.addConstraint(Sketcher.Constraint("Vertical", 0, 3, 1, 3))
sketch7.addConstraint(Sketcher.Constraint("Diameter", 0, Q("3.2 mm")))
sketch7.addConstraint(Sketcher.Constraint("DistanceY", 1, 3, 0, 3, Q("23 mm")))
sketch7.addConstraint(Sketcher.Constraint("DistanceX", -1, 1, 0, 3, Q("50.971761 mm")))
sketch7.addConstraint(Sketcher.Constraint("DistanceY", 0, 3, -1, 1, Q("72.790343 mm")))
pocket6 = body.newObject("PartDesign::Pocket", "Pocket005")
pocket6.Profile = sketch7
pocket6.Length = 6
pocket6.Reversed = True

# Sketch on XY plane
sketch8 = body.newObject("Sketcher::SketchObject", "Sketch007")
sketch8.AttachmentSupport = (doc.getObject("XY_Plane"), [""])
sketch8.MapMode = "FlatFace"
sketch8.addGeometry(Part.LineSegment(V(-42.6, -143.3, 0), V(-42.6, -149.3, 0)), False)
sketch8.addGeometry(Part.LineSegment(V(-42.6, -149.3, 0), V(-57.6, -149.3, 0)), False)
sketch8.addGeometry(Part.LineSegment(V(-57.6, -149.3, 0), V(-57.6, -143.3, 0)), False)
sketch8.addGeometry(Part.LineSegment(V(-57.6, -143.3, 0), V(-42.6, -143.3, 0)), False)
sketch8.addGeometry(Part.LineSegment(V(49.7, -69.8, 0), V(52.2, -69.8, 0)), False)
sketch8.addGeometry(Part.LineSegment(V(52.2, -69.8, 0), V(54, -71.5, 0)), False)
sketch8.addGeometry(Part.LineSegment(V(54, -71.5, 0), V(54, -74, 0)), False)
sketch8.addGeometry(Part.LineSegment(V(54, -74, 0), V(52.2, -75.8, 0)), False)
sketch8.addGeometry(Part.LineSegment(V(52.2, -75.8, 0), V(49.7, -75.8, 0)), False)
sketch8.addGeometry(Part.LineSegment(V(49.7, -75.8, 0), V(48, -74, 0)), False)
sketch8.addGeometry(Part.LineSegment(V(48, -74, 0), V(48, -71.5, 0)), False)
sketch8.addGeometry(Part.LineSegment(V(48, -71.5, 0), V(49.7, -69.8, 0)), False)
sketch8.addGeometry(Part.Circle(V(51, -72.8, 0), V(0, 0, 1), 1.6), False)
sketch8.addGeometry(Part.LineSegment(V(-6.6, -143.3, 0), V(-6.6, -149.3, 0)), False)
sketch8.addGeometry(Part.LineSegment(V(-6.6, -149.3, 0), V(-21.6, -149.3, 0)), False)
sketch8.addGeometry(Part.LineSegment(V(-21.6, -149.3, 0), V(-21.6, -143.3, 0)), False)
sketch8.addGeometry(Part.LineSegment(V(-21.6, -143.3, 0), V(-6.6, -143.3, 0)), False)
sketch8.addGeometry(Part.LineSegment(V(48, -94.5, 0), V(49.7, -92.8, 0)), False)
sketch8.addGeometry(Part.LineSegment(V(49.7, -92.8, 0), V(52.2, -92.8, 0)), False)
sketch8.addGeometry(Part.LineSegment(V(52.2, -92.8, 0), V(54, -94.5, 0)), False)
sketch8.addGeometry(Part.LineSegment(V(54, -94.5, 0), V(54, -97, 0)), False)
sketch8.addGeometry(Part.LineSegment(V(54, -97, 0), V(52.2, -98.8, 0)), False)
sketch8.addGeometry(Part.LineSegment(V(52.2, -98.8, 0), V(49.7, -98.8, 0)), False)
sketch8.addGeometry(Part.LineSegment(V(49.7, -98.8, 0), V(48, -97, 0)), False)
sketch8.addGeometry(Part.LineSegment(V(48, -97, 0), V(48, -94.5, 0)), False)
sketch8.addGeometry(Part.Circle(V(51, -95.8, 0), V(0, 0, 1), 1.6), False)
sketch8.addConstraint(Sketcher.Constraint("Coincident", 0, 2, 1, 1))
sketch8.addConstraint(Sketcher.Constraint("Coincident", 1, 2, 2, 1))
sketch8.addConstraint(Sketcher.Constraint("Coincident", 2, 2, 3, 1))
sketch8.addConstraint(Sketcher.Constraint("Coincident", 3, 2, 0, 1))
sketch8.addConstraint(Sketcher.Constraint("Coincident", 4, 2, 5, 1))
sketch8.addConstraint(Sketcher.Constraint("Coincident", 5, 2, 6, 1))
sketch8.addConstraint(Sketcher.Constraint("Coincident", 6, 2, 7, 1))
sketch8.addConstraint(Sketcher.Constraint("Coincident", 7, 2, 8, 1))
sketch8.addConstraint(Sketcher.Constraint("Coincident", 8, 2, 9, 1))
sketch8.addConstraint(Sketcher.Constraint("Coincident", 9, 2, 10, 1))
sketch8.addConstraint(Sketcher.Constraint("Coincident", 10, 2, 11, 1))
sketch8.addConstraint(Sketcher.Constraint("Coincident", 11, 2, 4, 1))
sketch8.addConstraint(Sketcher.Constraint("Coincident", 13, 2, 14, 1))
sketch8.addConstraint(Sketcher.Constraint("Coincident", 14, 2, 15, 1))
sketch8.addConstraint(Sketcher.Constraint("Coincident", 15, 2, 16, 1))
sketch8.addConstraint(Sketcher.Constraint("Coincident", 16, 2, 13, 1))
sketch8.addConstraint(Sketcher.Constraint("Coincident", 17, 2, 18, 1))
sketch8.addConstraint(Sketcher.Constraint("Coincident", 18, 2, 19, 1))
sketch8.addConstraint(Sketcher.Constraint("Coincident", 19, 2, 20, 1))
sketch8.addConstraint(Sketcher.Constraint("Coincident", 20, 2, 21, 1))
sketch8.addConstraint(Sketcher.Constraint("Coincident", 21, 2, 22, 1))
sketch8.addConstraint(Sketcher.Constraint("Coincident", 22, 2, 23, 1))
sketch8.addConstraint(Sketcher.Constraint("Coincident", 23, 2, 24, 1))
sketch8.addConstraint(Sketcher.Constraint("Coincident", 24, 2, 17, 1))
sketch8.addConstraint(Sketcher.Constraint("Vertical", 0))
sketch8.addConstraint(Sketcher.Constraint("Horizontal", 1))
sketch8.addConstraint(Sketcher.Constraint("Vertical", 2))
sketch8.addConstraint(Sketcher.Constraint("Horizontal", 3))
sketch8.addConstraint(Sketcher.Constraint("Horizontal", 4))
sketch8.addConstraint(Sketcher.Constraint("Vertical", 6))
sketch8.addConstraint(Sketcher.Constraint("Horizontal", 8))
sketch8.addConstraint(Sketcher.Constraint("Vertical", 10))
sketch8.addConstraint(Sketcher.Constraint("Vertical", 13))
sketch8.addConstraint(Sketcher.Constraint("Horizontal", 14))
sketch8.addConstraint(Sketcher.Constraint("Vertical", 15))
sketch8.addConstraint(Sketcher.Constraint("Horizontal", 16))
sketch8.addConstraint(Sketcher.Constraint("Horizontal", 18))
sketch8.addConstraint(Sketcher.Constraint("Vertical", 20))
sketch8.addConstraint(Sketcher.Constraint("Horizontal", 22))
sketch8.addConstraint(Sketcher.Constraint("Vertical", 24))
sketch8.addConstraint(Sketcher.Constraint("Equal", 12, 25))
sketch8.addConstraint(Sketcher.Constraint("Perpendicular", 5, 7))
sketch8.addConstraint(Sketcher.Constraint("Perpendicular", 7, 9))
sketch8.addConstraint(Sketcher.Constraint("Perpendicular", 9, 11))
sketch8.addConstraint(Sketcher.Constraint("Parallel", 11, 17))
sketch8.addConstraint(Sketcher.Constraint("Perpendicular", 17, 19))
sketch8.addConstraint(Sketcher.Constraint("Perpendicular", 19, 21))
sketch8.addConstraint(Sketcher.Constraint("Perpendicular", 21, 23))
sketch8.addConstraint(Sketcher.Constraint("Horizontal", 6, 2, 9, 2))
sketch8.addConstraint(Sketcher.Constraint("Horizontal", 5, 2, 10, 2))
sketch8.addConstraint(Sketcher.Constraint("Horizontal", 1, 2, 13, 2))
sketch8.addConstraint(Sketcher.Constraint("Horizontal", 3, 2, 15, 2))
sketch8.addConstraint(Sketcher.Constraint("Horizontal", 20, 2, 23, 2))
sketch8.addConstraint(Sketcher.Constraint("Horizontal", 19, 2, 24, 2))
sketch8.addConstraint(Sketcher.Constraint("Vertical", 12, 3, 25, 3))
sketch8.addConstraint(Sketcher.Constraint("Vertical", 4, 2, 7, 2))
sketch8.addConstraint(Sketcher.Constraint("Vertical", 8, 2, 11, 2))
sketch8.addConstraint(Sketcher.Constraint("Vertical", 11, 2, 17, 2))
sketch8.addConstraint(Sketcher.Constraint("Vertical", 7, 2, 18, 2))
sketch8.addConstraint(Sketcher.Constraint("Vertical", 6, 2, 19, 2))
sketch8.addConstraint(Sketcher.Constraint("Vertical", 18, 2, 21, 2))
sketch8.addConstraint(Sketcher.Constraint("Equal", 3, 14))
sketch8.addConstraint(Sketcher.Constraint("Equal", 22, 6))
sketch8.addConstraint(Sketcher.Constraint("Equal", 10, 20))
sketch8.addConstraint(Sketcher.Constraint("Diameter", 12, Q("3.2 mm")))
sketch8.addConstraint(Sketcher.Constraint("DistanceX", 1, 2, 1, 1, Q("15 mm")))
sketch8.addConstraint(Sketcher.Constraint("DistanceY", 0, 2, 0, 1, Q("6 mm")))
sketch8.addConstraint(Sketcher.Constraint("DistanceY", 25, 3, 12, 3, Q("23 mm")))
sketch8.addConstraint(Sketcher.Constraint("DistanceY", 12, 3, 4, 2, Q("3 mm")))
sketch8.addConstraint(Sketcher.Constraint("DistanceX", 12, 3, 5, 2, Q("3 mm")))
sketch8.addConstraint(Sketcher.Constraint("DistanceY", 7, 2, 12, 3, Q("3 mm")))
sketch8.addConstraint(Sketcher.Constraint("DistanceX", 0, 2, 13, 2, Q("36 mm")))
sketch8.addConstraint(Sketcher.Constraint("DistanceY", 25, 3, 17, 2, Q("3 mm")))
sketch8.addConstraint(Sketcher.Constraint("DistanceX", 0, 2, 25, 3, Q("93.6 mm")))
sketch8.addConstraint(Sketcher.Constraint("DistanceY", 0, 2, 25, 3, Q("53.5 mm")))
sketch8.addConstraint(Sketcher.Constraint("DistanceX", 4, 1, 4, 2, Q("2.485281 mm")))
sketch8.addConstraint(Sketcher.Constraint("DistanceX", -1, 1, 4, 2, Q("52.214402 mm")))
sketch8.addConstraint(Sketcher.Constraint("DistanceY", 12, 3, -1, 1, Q("72.790343 mm")))
pocket7 = body.newObject("PartDesign::Pocket", "Pocket006")
pocket7.Profile = sketch8
pocket7.Length = 2
pocket7.Reversed = True

doc.recompute()
